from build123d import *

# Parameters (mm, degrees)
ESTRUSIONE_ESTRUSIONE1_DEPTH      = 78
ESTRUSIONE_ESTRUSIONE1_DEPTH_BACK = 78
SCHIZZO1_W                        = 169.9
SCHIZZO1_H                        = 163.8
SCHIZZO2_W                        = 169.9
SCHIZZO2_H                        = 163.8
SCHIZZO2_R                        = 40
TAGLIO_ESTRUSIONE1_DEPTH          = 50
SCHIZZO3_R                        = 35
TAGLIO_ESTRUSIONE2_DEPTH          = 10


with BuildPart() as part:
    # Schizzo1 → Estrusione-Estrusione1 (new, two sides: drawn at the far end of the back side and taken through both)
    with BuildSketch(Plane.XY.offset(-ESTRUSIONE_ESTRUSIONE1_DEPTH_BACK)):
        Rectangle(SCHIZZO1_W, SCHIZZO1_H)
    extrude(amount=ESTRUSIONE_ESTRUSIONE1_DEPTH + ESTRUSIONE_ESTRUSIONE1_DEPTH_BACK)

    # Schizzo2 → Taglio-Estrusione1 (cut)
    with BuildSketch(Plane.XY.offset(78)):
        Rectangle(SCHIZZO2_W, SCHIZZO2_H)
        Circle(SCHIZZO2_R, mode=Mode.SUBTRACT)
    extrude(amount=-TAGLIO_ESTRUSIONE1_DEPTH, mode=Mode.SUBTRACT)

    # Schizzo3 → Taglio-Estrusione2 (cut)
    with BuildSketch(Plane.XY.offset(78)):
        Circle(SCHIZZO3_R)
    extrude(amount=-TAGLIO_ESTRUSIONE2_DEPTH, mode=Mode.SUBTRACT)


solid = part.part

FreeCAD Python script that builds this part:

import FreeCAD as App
import Part
import Sketcher

V = App.Vector
Q = App.Units.Quantity


def add_polygon(sketch, points):
    """Adds a closed chain of lines whose ends are joined by coincident constraints."""
    first, n = sketch.GeometryCount, len(points)
    for a, b in zip(points, points[1:] + points[:1]):
        sketch.addGeometry(Part.LineSegment(App.Vector(*a, 0), App.Vector(*b, 0)), False)
    for i in range(n):
        sketch.addConstraint(Sketcher.Constraint("Coincident", first + i, 2, first + (i + 1) % n, 1))

doc = App.newDocument("Part")
body = doc.addObject("PartDesign::Body", "Body")

sketch1 = body.newObject("Sketcher::SketchObject", "Sketch")
sketch1.AttachmentSupport = (doc.getObject("XY_Plane"), [""])
sketch1.MapMode = "FlatFace"
add_polygon(sketch1, [(-84.95, 81.9), (-84.95, -81.9), (84.95, -81.9), (84.95, 81.9)])
sketch1.addConstraint([
    Sketcher.Constraint("Vertical", 0),
    Sketcher.Constraint("Horizontal", 1),
    Sketcher.Constraint("Vertical", 2),
    Sketcher.Constraint("Horizontal", 3),
    Sketcher.Constraint("Symmetric", 0, 2, 2, 2, -1, 1),
    Sketcher.Constraint("DistanceX", 1, 1, 1, 2, Q("169.9 mm")),
    Sketcher.Constraint("DistanceY", 0, 2, 0, 1, Q("163.8 mm")),
])
pad1 = body.newObject("PartDesign::Pad", "Pad")
pad1.Profile = sketch1
pad1.Type = "TwoLengths"
pad1.Length = 78
pad1.Length2 = 78

sketch2 = body.newObject("Sketcher::SketchObject", "Sketch001")
sketch2.AttachmentSupport = (doc.getObject("XY_Plane"), [""])
sketch2.MapMode = "FlatFace"
sketch2.AttachmentOffset = App.Placement(V(0, 0, 78), App.Rotation())
add_polygon(sketch2, [(-84.95, 81.9), (-84.95, -81.9), (84.95, -81.9), (84.95, 81.9)])
sketch2.addGeometry(Part.Circle(V(0, 0, 0), V(0, 0, 1), 40), False)
sketch2.addConstraint([
    Sketcher.Constraint("Vertical", 0),
    Sketcher.Constraint("Horizontal", 1),
    Sketcher.Constraint("Vertical", 2),
    Sketcher.Constraint("Horizontal", 3),
    Sketcher.Constraint("Coincident", 4, 3, -1, 1),
    Sketcher.Constraint("Symmetric", 0, 2, 2, 2, -1, 1),
    Sketcher.Constraint("Diameter", 4, Q("80 mm")),
    Sketcher.Constraint("DistanceX", 1, 1, 1, 2, Q("169.9 mm")),
    Sketcher.Constraint("DistanceY", 0, 2, 0, 1, Q("163.8 mm")),
])
pocket1 = body.newObject("PartDesign::Pocket", "Pocket")
pocket1.Profile = sketch2
pocket1.Length = 50

sketch3 = body.newObject("Sketcher::SketchObject", "Sketch002")
sketch3.AttachmentSupport = (doc.getObject("XY_Plane"), [""])
sketch3.MapMode = "FlatFace"
sketch3.AttachmentOffset = App.Placement(V(0, 0, 78), App.Rotation())
sketch3.addGeometry(Part.Circle(V(0, 0, 0), V(0, 0, 1), 35), False)
sketch3.addConstraint([
    Sketcher.Constraint("Coincident", 0, 3, -1, 1),
    Sketcher.Constraint("Diameter", 0, Q("70 mm")),
])
pocket2 = body.newObject("PartDesign::Pocket", "Pocket001")
pocket2.Profile = sketch3
pocket2.Length = 10

doc.recompute()
